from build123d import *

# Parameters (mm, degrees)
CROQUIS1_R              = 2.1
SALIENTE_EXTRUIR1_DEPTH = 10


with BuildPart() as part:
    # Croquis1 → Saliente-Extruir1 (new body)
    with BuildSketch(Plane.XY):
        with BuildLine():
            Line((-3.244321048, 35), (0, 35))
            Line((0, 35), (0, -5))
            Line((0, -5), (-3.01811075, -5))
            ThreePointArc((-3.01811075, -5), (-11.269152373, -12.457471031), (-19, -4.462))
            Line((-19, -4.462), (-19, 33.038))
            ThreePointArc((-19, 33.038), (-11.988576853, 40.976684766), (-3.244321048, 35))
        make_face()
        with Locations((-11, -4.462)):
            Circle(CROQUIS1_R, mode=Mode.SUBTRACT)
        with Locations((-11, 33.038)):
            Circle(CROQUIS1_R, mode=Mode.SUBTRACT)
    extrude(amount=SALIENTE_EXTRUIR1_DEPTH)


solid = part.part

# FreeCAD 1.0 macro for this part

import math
import FreeCAD as App
import Part
import Sketcher
from FreeCAD import Vector
Q = App.Units.Quantity

doc = App.newDocument("Part")
params = doc.addObject("Spreadsheet::Sheet", "Params")
for row, (alias, value) in enumerate([
    ("sketch1_radius", "8 mm"),
    ("sketch1_diameter", "4.2 mm"),
    ("sketch1_height", "40 mm"),
    ("sketch1_height2", "37.5 mm"),
    ("pad1_length", "10 mm"),
], start=1):
    params.set(f"A{row}", alias)
    params.set(f"B{row}", "=" + value)
    params.setAlias(f"B{row}", alias)

body = doc.addObject("PartDesign::Body", "Body")

sketch1 = body.newObject("Sketcher::SketchObject", "Sketch")
sketch1.AttachmentSupport = (doc.getObject("XY_Plane"), [""])
sketch1.MapMode = "FlatFace"
sketch1.addGeometry([
    Part.LineSegment(Vector(0, 35, 0), Vector(-3.2, 35, 0)),
    Part.ArcOfCircle(Part.Circle(Vector(-11, 33, 0), Vector(0, 0, 1), 8), math.radians(14), math.radians(180)),
    Part.LineSegment(Vector(-19, 33, 0), Vector(-19, -4.5, 0)),
    Part.ArcOfCircle(Part.Circle(Vector(-11, -4.5, 0), Vector(0, 0, 1), 8), math.radians(180), math.radians(356)),
    Part.LineSegment(Vector(-3, -5, 0), Vector(0, -5, 0)),
    Part.LineSegment(Vector(0, -5, 0), Vector(0, 35, 0)),
    Part.Circle(Vector(-11, -4.5, 0), Vector(0, 0, 1), 2.1),
    Part.Circle(Vector(-11, 33, 0), Vector(0, 0, 1), 2.1),
], False)
sketch1.addConstraint([
    Sketcher.Constraint("Coincident", 0, 2, 1, 1),
    Sketcher.Constraint("Tangent", 1, 2, 2, 1),
    Sketcher.Constraint("Tangent", 2, 2, 3, 1),
    Sketcher.Constraint("Coincident", 3, 2, 4, 1),
    Sketcher.Constraint("Coincident", 4, 2, 5, 1),
    Sketcher.Constraint("Coincident", 5, 2, 0, 1),
    Sketcher.Constraint("Horizontal", 0),
    Sketcher.Constraint("Vertical", 2),
    Sketcher.Constraint("Horizontal", 4),
    Sketcher.Constraint("Vertical", 5),
    Sketcher.Constraint("Coincident", 6, 3, 3, 3),
    Sketcher.Constraint("Coincident", 7, 3, 1, 3),
    Sketcher.Constraint("Equal", 1, 3),
    Sketcher.Constraint("Equal", 6, 7),
    Sketcher.Constraint("PointOnObject", 4, 2, -2),
    Sketcher.Constraint("Radius", 1, Q("8 mm")),
    Sketcher.Constraint("Diameter", 6, Q("4.2 mm")),
    Sketcher.Constraint("DistanceY", 5, 1, 5, 2, Q("40 mm")),
    Sketcher.Constraint("DistanceY", 2, 2, 2, 1, Q("37.5 mm")),
    Sketcher.Constraint("DistanceX", 1, 3, -1, 1, Q("11 mm")),
    Sketcher.Constraint("DistanceY", -1, 1, 0, 2, Q("35 mm")),
    Sketcher.Constraint("DistanceY", -1, 1, 1, 3, Q("33.038 mm")),
])
sketch1.setExpression("Constraints[15]", "Params.sketch1_radius")
sketch1.setExpression("Constraints[16]", "Params.sketch1_diameter")
sketch1.setExpression("Constraints[17]", "Params.sketch1_height")
sketch1.setExpression("Constraints[18]", "Params.sketch1_height2")
pad1 = body.newObject("PartDesign::Pad", "Pad")
pad1.Profile = sketch1
pad1.setExpression("Length", "Params.pad1_length")

doc.recompute()
